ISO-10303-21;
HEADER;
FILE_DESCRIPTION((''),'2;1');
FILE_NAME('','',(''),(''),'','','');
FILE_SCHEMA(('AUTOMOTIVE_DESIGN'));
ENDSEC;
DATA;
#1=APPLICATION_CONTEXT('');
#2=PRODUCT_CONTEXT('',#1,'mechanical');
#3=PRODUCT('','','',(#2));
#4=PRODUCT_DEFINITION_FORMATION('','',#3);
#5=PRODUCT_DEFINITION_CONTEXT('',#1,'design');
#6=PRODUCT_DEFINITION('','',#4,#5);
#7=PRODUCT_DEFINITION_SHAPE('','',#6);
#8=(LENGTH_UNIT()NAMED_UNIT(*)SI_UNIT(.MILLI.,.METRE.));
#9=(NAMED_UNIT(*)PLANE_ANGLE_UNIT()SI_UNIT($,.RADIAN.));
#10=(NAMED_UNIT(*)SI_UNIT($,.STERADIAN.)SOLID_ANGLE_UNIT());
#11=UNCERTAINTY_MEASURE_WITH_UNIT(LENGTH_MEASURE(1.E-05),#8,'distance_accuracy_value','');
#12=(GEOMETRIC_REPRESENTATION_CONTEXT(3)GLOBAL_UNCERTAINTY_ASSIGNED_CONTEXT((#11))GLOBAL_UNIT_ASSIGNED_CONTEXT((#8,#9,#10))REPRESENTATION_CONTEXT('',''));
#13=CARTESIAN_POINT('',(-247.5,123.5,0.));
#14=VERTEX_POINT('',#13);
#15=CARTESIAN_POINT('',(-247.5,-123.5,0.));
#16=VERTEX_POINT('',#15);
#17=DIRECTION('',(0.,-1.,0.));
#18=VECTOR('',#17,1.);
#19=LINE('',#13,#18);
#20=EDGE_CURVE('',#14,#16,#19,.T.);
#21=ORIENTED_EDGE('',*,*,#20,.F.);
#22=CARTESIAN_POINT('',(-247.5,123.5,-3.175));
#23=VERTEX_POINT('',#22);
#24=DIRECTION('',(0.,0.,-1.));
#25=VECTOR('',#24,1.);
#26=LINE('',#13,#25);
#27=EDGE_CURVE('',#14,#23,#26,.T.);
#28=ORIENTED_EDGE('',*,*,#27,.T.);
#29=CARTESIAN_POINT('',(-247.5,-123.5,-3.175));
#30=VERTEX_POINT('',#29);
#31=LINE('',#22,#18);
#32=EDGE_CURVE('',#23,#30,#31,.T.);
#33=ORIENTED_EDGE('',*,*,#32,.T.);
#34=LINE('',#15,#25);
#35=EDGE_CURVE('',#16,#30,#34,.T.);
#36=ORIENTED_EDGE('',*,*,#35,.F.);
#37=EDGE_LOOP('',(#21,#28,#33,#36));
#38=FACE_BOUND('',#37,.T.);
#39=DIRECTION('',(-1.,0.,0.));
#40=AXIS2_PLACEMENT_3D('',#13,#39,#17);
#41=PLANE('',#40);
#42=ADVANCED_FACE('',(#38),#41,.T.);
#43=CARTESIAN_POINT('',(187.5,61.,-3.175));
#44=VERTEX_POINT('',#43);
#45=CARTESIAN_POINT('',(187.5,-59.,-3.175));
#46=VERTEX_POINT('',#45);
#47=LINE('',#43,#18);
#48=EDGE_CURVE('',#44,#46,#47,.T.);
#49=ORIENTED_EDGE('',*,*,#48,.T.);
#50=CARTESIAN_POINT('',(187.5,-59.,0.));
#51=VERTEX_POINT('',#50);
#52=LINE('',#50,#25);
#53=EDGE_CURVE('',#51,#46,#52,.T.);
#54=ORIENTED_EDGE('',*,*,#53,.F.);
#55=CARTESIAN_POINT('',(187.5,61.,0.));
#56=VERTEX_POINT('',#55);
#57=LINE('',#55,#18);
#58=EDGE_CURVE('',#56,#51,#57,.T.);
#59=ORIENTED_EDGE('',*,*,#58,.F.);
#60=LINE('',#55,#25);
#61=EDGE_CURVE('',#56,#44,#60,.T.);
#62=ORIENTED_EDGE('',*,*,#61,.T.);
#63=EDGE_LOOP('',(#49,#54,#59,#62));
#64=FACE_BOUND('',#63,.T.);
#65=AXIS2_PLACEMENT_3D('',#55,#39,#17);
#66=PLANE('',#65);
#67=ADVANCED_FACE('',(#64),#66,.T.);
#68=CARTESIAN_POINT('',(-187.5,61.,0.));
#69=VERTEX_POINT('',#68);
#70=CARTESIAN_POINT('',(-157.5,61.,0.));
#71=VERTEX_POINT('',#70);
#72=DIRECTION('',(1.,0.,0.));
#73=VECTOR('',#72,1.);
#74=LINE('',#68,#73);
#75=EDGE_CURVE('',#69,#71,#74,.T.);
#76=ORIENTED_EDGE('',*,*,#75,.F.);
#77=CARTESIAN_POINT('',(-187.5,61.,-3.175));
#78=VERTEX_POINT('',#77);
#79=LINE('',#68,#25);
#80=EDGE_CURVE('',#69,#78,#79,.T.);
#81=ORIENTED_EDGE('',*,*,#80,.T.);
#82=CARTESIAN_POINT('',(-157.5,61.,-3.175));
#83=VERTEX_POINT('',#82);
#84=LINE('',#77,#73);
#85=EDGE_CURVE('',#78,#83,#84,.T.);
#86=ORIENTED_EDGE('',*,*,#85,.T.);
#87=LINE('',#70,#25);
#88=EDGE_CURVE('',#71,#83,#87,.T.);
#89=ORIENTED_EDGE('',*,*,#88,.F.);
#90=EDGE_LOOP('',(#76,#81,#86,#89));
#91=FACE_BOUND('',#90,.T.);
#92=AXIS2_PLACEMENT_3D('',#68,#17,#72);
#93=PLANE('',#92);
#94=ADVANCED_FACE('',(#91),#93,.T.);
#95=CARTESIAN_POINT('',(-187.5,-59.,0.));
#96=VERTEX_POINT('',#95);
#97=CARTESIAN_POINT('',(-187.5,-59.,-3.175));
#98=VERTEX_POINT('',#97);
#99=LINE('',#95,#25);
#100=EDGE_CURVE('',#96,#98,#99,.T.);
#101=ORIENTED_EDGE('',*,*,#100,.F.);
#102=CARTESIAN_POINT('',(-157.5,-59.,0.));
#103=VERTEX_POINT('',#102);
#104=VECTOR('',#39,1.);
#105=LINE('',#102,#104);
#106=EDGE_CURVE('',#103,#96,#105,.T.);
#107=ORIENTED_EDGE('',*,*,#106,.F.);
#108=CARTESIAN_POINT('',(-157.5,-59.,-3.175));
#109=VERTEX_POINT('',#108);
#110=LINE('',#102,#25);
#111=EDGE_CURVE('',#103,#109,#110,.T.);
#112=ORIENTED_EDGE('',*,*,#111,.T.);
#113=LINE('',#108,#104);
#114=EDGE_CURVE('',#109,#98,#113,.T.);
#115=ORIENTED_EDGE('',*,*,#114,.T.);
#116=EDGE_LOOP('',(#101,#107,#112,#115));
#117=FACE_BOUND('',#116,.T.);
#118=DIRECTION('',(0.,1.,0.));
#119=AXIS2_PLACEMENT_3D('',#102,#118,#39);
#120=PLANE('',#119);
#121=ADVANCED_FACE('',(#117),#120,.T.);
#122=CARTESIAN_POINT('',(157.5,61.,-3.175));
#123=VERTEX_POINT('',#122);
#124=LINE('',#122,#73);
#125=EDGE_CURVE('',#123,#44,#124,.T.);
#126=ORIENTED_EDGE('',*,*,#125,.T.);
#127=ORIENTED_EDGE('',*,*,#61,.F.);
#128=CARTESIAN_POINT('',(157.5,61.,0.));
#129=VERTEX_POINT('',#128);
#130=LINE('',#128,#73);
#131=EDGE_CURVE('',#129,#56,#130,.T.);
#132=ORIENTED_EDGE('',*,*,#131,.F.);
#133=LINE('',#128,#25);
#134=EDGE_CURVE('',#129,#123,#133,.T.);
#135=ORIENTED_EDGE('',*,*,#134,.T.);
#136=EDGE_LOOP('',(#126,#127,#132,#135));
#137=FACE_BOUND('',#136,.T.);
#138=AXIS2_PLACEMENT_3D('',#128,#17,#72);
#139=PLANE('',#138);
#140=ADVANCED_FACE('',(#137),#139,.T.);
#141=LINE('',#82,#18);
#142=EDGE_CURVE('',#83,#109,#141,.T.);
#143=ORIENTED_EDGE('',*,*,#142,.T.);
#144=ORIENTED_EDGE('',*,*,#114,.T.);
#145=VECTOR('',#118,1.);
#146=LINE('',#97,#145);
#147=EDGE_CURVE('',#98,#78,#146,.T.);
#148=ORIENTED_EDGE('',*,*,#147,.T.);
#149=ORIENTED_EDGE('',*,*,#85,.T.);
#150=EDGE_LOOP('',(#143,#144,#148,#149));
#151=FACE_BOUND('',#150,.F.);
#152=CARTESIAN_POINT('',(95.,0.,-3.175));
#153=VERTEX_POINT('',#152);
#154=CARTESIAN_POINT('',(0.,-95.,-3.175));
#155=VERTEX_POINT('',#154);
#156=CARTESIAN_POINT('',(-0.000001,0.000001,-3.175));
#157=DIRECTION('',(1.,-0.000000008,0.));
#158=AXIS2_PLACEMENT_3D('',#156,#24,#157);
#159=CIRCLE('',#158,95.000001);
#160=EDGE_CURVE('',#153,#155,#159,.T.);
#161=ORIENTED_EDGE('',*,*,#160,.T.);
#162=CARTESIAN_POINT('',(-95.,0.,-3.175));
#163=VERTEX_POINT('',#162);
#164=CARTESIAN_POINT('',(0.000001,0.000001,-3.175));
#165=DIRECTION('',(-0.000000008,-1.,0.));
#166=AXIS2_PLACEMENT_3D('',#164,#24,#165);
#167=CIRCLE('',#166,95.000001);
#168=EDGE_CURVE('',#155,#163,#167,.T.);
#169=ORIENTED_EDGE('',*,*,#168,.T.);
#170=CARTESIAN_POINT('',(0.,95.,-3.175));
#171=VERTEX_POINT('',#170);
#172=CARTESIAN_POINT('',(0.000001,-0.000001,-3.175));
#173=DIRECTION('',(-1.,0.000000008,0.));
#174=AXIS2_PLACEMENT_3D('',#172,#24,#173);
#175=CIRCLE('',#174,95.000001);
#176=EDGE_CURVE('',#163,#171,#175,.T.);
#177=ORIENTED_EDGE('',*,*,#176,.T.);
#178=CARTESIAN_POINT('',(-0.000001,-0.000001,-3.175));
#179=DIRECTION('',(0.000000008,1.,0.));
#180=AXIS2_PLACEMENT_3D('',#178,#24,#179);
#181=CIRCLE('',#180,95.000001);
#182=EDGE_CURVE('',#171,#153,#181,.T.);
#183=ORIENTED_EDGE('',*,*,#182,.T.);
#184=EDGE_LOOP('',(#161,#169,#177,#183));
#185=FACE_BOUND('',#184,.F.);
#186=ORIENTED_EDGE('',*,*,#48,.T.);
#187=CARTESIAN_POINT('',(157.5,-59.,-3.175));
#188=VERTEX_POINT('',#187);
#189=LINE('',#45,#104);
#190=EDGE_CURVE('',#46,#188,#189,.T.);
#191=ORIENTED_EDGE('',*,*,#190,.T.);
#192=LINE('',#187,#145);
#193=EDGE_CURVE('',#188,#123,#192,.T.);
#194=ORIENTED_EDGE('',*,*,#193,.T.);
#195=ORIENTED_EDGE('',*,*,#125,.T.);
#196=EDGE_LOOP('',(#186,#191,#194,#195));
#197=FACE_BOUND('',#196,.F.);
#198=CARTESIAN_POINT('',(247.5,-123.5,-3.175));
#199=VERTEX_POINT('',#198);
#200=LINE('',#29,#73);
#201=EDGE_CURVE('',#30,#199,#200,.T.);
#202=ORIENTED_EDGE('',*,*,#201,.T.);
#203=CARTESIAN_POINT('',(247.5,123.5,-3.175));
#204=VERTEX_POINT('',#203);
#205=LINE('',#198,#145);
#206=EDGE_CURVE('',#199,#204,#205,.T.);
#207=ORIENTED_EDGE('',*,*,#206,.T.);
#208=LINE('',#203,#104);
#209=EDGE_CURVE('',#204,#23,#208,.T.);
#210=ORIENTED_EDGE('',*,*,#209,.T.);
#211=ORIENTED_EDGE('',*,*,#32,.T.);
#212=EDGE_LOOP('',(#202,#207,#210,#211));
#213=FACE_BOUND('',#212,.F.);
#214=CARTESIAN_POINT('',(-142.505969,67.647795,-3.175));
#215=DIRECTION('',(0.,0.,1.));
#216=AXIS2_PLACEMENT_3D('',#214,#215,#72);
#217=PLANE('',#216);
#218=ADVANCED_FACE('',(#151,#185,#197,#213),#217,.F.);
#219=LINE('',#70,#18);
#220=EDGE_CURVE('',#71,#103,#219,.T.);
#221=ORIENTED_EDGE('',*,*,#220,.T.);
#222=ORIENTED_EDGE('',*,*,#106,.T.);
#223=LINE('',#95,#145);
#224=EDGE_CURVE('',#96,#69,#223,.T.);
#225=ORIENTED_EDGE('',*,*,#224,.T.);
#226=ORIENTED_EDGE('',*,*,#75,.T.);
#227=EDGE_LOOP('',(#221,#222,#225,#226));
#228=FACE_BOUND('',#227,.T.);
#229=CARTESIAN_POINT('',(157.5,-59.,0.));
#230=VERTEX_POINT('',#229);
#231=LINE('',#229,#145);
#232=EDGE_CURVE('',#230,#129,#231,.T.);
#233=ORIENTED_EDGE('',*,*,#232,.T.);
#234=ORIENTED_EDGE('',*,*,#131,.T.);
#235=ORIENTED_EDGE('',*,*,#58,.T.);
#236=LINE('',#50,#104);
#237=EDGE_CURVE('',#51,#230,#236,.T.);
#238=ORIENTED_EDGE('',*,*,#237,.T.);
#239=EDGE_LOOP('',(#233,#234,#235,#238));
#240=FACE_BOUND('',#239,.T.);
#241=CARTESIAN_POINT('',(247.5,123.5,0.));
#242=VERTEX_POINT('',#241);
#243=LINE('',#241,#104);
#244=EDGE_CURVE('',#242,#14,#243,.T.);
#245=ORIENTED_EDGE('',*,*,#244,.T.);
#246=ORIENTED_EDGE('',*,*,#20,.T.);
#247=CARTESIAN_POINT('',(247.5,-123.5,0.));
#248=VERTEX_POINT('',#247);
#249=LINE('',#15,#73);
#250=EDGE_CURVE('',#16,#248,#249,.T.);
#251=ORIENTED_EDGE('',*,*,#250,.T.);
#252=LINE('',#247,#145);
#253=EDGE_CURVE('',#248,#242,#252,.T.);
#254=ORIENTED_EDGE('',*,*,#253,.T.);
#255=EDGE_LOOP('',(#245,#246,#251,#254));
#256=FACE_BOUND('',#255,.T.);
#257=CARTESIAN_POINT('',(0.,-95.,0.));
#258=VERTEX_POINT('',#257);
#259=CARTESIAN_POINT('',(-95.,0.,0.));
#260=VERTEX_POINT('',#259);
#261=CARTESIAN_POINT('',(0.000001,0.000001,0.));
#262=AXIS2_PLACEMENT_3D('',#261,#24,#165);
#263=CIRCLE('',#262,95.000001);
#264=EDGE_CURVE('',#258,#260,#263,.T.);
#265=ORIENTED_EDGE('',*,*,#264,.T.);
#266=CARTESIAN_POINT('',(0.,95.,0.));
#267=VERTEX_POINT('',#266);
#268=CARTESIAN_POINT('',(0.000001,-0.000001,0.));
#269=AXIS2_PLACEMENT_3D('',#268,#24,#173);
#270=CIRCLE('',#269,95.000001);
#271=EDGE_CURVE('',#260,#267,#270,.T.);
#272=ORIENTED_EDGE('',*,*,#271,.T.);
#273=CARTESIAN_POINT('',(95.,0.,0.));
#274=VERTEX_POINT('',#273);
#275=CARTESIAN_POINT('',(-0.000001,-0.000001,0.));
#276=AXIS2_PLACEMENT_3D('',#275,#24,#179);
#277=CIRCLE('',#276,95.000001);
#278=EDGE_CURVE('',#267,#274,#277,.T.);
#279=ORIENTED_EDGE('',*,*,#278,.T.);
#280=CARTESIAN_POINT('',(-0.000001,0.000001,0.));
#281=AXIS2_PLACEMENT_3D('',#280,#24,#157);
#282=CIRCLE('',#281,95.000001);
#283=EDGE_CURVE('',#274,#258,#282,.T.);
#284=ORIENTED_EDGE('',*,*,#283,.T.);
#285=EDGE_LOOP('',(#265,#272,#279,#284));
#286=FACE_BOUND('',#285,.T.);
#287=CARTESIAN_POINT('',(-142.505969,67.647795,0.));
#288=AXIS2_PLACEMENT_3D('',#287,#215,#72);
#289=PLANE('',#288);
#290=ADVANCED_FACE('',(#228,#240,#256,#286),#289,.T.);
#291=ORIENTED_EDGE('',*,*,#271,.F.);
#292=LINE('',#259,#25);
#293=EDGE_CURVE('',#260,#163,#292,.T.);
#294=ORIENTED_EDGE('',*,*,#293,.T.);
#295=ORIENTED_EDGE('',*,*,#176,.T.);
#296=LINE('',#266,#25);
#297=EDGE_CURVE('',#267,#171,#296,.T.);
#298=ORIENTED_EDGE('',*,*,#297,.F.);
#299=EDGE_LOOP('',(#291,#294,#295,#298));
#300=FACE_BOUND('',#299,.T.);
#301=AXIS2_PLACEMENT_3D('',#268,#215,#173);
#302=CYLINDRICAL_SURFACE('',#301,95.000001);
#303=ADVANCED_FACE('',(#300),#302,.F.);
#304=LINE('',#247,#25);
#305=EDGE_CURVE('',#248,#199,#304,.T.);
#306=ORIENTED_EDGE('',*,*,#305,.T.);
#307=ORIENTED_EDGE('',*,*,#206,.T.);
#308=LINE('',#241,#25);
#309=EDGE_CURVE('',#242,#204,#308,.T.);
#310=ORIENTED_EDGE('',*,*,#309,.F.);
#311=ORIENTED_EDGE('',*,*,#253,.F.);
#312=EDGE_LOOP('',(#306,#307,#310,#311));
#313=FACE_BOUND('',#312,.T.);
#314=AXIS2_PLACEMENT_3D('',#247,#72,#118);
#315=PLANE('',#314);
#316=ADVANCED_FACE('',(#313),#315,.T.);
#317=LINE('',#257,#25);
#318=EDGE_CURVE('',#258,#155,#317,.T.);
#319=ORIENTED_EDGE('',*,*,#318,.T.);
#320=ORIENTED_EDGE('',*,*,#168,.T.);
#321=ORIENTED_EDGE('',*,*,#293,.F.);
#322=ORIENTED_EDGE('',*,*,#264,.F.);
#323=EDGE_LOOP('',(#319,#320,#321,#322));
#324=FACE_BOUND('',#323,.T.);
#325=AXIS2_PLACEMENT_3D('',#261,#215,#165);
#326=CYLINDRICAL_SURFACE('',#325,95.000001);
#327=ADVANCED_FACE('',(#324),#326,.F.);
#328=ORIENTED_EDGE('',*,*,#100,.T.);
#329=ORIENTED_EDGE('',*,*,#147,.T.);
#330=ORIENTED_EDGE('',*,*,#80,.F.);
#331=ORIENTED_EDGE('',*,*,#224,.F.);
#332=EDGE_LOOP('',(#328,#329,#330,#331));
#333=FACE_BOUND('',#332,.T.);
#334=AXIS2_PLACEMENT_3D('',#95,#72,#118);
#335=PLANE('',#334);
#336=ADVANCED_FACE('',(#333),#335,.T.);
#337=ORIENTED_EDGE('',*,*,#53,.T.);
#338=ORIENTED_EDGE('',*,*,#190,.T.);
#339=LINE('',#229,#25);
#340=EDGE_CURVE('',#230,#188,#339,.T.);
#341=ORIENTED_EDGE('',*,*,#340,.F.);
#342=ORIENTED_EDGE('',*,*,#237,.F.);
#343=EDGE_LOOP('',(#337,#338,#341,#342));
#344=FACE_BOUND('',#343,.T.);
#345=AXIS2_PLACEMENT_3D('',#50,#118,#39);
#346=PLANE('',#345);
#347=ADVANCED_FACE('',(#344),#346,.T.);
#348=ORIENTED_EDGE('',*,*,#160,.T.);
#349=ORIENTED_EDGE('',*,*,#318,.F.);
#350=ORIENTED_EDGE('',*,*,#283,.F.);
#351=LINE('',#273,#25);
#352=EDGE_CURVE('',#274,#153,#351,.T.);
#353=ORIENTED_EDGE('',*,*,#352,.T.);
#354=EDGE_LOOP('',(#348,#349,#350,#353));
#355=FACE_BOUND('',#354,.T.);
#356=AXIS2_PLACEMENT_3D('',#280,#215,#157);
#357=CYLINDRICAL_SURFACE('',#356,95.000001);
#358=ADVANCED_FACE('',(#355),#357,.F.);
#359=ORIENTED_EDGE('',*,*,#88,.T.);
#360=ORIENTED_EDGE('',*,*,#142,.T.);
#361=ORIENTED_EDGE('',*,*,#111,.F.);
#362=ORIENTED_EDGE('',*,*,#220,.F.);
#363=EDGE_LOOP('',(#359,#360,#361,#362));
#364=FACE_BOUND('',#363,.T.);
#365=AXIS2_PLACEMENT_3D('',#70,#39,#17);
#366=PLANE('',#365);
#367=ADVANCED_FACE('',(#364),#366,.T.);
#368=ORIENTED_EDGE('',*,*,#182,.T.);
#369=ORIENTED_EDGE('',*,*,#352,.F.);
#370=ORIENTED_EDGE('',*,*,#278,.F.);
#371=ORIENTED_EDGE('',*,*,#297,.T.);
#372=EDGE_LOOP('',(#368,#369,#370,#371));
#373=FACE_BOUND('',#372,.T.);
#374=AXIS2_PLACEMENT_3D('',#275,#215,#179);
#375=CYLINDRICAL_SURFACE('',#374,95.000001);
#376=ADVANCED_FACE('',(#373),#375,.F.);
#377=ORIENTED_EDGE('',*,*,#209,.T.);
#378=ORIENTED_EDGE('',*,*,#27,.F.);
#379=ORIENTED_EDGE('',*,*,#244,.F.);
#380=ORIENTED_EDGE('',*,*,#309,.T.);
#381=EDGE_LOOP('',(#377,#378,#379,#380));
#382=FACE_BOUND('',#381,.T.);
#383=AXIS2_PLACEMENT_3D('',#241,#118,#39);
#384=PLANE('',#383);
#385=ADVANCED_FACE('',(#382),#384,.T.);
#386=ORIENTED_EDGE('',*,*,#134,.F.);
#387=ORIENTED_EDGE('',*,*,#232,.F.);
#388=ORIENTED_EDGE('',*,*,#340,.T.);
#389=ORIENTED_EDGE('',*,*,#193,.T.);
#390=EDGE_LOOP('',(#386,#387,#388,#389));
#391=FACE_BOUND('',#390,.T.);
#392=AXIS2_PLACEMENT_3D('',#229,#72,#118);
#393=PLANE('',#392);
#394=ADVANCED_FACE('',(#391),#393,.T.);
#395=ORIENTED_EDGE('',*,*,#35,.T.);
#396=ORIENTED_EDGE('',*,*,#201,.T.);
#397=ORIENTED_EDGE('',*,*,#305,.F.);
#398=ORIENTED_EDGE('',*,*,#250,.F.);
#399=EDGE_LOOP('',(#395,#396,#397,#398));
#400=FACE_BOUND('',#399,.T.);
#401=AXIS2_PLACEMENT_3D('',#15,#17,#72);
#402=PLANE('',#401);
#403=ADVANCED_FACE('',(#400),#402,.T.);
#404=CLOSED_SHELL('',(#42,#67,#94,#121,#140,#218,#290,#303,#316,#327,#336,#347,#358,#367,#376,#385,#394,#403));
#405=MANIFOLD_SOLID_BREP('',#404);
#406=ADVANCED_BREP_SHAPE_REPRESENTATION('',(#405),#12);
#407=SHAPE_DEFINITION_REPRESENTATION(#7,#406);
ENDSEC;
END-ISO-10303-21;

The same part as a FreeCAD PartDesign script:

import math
import FreeCAD as App
import Part
import Sketcher
from FreeCAD import Vector

doc = App.newDocument("Part")
body = doc.addObject("PartDesign::Body", "Body")

# Sketch on XY plane
sketch1 = doc.addObject("Sketcher::SketchObject", "Sketch")
body.addObject(sketch1)
sketch1.AttachmentSupport = (doc.XY_Plane, [""])
sketch1.MapMode = "FlatFace"
sketch1.addGeometry([
    Part.LineSegment(Vector(-248, 124, 0), Vector(-248, -124, 0)),  # 0
    Part.LineSegment(Vector(-248, -124, 0), Vector(248, -124, 0)),  # 1
    Part.LineSegment(Vector(248, -124, 0), Vector(248, 124, 0)),  # 2
    Part.LineSegment(Vector(248, 124, 0), Vector(-248, 124, 0)),  # 3
    Part.ArcOfCircle(Part.Circle(Vector(0, 0, 0), Vector(0, 0, 1), 95), math.radians(-180), math.radians(-90)),  # 4
    Part.ArcOfCircle(Part.Circle(Vector(0, 0, 0), Vector(0, 0, 1), 95), math.radians(90), math.radians(180)),  # 5
    Part.ArcOfCircle(Part.Circle(Vector(0, 0, 0), Vector(0, 0, 1), 95), math.radians(0), math.radians(90)),  # 6
    Part.ArcOfCircle(Part.Circle(Vector(0, 0, 0), Vector(0, 0, 1), 95), math.radians(-90), math.radians(0)),  # 7
    Part.LineSegment(Vector(158, 61, 0), Vector(188, 61, 0)),  # 8
    Part.LineSegment(Vector(188, 61, 0), Vector(188, -59, 0)),  # 9
    Part.LineSegment(Vector(188, -59, 0), Vector(158, -59, 0)),  # 10
    Part.LineSegment(Vector(158, -59, 0), Vector(158, 61, 0)),  # 11
    Part.LineSegment(Vector(-188, 61, 0), Vector(-158, 61, 0)),  # 12
    Part.LineSegment(Vector(-158, 61, 0), Vector(-158, -59, 0)),  # 13
    Part.LineSegment(Vector(-158, -59, 0), Vector(-188, -59, 0)),  # 14
    Part.LineSegment(Vector(-188, -59, 0), Vector(-188, 61, 0)),  # 15
], False)
sketch1.addConstraint([
    Sketcher.Constraint("Coincident", 0, 2, 1, 1),
    Sketcher.Constraint("Coincident", 1, 2, 2, 1),
    Sketcher.Constraint("Coincident", 2, 2, 3, 1),
    Sketcher.Constraint("Coincident", 3, 2, 0, 1),
    Sketcher.Constraint("Tangent", 4, 1, 5, 2),
    Sketcher.Constraint("Tangent", 5, 1, 6, 2),
    Sketcher.Constraint("Tangent", 6, 1, 7, 2),
    Sketcher.Constraint("Tangent", 7, 1, 4, 2),
    Sketcher.Constraint("Coincident", 8, 2, 9, 1),
    Sketcher.Constraint("Coincident", 9, 2, 10, 1),
    Sketcher.Constraint("Coincident", 10, 2, 11, 1),
    Sketcher.Constraint("Coincident", 11, 2, 8, 1),
    Sketcher.Constraint("Coincident", 12, 2, 13, 1),
    Sketcher.Constraint("Coincident", 13, 2, 14, 1),
    Sketcher.Constraint("Coincident", 14, 2, 15, 1),
    Sketcher.Constraint("Coincident", 15, 2, 12, 1),
    Sketcher.Constraint("Vertical", 0),
    Sketcher.Constraint("Horizontal", 1),
    Sketcher.Constraint("Vertical", 2),
    Sketcher.Constraint("Horizontal", 3),
    Sketcher.Constraint("Horizontal", 8),
    Sketcher.Constraint("Vertical", 9),
    Sketcher.Constraint("Horizontal", 10),
    Sketcher.Constraint("Vertical", 11),
    Sketcher.Constraint("Horizontal", 12),
    Sketcher.Constraint("Vertical", 13),
    Sketcher.Constraint("Horizontal", 14),
    Sketcher.Constraint("Vertical", 15),
    Sketcher.Constraint("Coincident", 4, 3, -1, 1),
    Sketcher.Constraint("Equal", 4, 5),
    Sketcher.Constraint("Symmetric", 0, 2, 2, 2, -1, 1),
    Sketcher.Constraint("Symmetric", 11, 2, 12, 2, -2),
    Sketcher.Constraint("Symmetric", 9, 2, 14, 2, -2),
    Sketcher.Constraint("PointOnObject", 4, 1, -1),
    Sketcher.Constraint("PointOnObject", 5, 1, -2),
    Sketcher.Constraint("PointOnObject", 6, 1, -1),
    Sketcher.Constraint("PointOnObject", 7, 1, -2),
    Sketcher.Constraint("Radius", 4, 95.000001),
    Sketcher.Constraint("DistanceX", 1, 1, 1, 2, 495.0),
    Sketcher.Constraint("DistanceX", 8, 1, 8, 2, 30.0),
    Sketcher.Constraint("DistanceY", 0, 2, 0, 1, 247.0),
    Sketcher.Constraint("DistanceY", 9, 2, 9, 1, 120.0),
    Sketcher.Constraint("DistanceY", -1, 1, 8, 2, 61.0),
    Sketcher.Constraint("DistanceX", 8, 2, 2, 2, 60.0),
])
pad1 = doc.addObject("PartDesign::Pad", "Pad")
body.addObject(pad1)
pad1.Profile = sketch1
pad1.Length = 3.175
pad1.Reversed = True

doc.recompute()
